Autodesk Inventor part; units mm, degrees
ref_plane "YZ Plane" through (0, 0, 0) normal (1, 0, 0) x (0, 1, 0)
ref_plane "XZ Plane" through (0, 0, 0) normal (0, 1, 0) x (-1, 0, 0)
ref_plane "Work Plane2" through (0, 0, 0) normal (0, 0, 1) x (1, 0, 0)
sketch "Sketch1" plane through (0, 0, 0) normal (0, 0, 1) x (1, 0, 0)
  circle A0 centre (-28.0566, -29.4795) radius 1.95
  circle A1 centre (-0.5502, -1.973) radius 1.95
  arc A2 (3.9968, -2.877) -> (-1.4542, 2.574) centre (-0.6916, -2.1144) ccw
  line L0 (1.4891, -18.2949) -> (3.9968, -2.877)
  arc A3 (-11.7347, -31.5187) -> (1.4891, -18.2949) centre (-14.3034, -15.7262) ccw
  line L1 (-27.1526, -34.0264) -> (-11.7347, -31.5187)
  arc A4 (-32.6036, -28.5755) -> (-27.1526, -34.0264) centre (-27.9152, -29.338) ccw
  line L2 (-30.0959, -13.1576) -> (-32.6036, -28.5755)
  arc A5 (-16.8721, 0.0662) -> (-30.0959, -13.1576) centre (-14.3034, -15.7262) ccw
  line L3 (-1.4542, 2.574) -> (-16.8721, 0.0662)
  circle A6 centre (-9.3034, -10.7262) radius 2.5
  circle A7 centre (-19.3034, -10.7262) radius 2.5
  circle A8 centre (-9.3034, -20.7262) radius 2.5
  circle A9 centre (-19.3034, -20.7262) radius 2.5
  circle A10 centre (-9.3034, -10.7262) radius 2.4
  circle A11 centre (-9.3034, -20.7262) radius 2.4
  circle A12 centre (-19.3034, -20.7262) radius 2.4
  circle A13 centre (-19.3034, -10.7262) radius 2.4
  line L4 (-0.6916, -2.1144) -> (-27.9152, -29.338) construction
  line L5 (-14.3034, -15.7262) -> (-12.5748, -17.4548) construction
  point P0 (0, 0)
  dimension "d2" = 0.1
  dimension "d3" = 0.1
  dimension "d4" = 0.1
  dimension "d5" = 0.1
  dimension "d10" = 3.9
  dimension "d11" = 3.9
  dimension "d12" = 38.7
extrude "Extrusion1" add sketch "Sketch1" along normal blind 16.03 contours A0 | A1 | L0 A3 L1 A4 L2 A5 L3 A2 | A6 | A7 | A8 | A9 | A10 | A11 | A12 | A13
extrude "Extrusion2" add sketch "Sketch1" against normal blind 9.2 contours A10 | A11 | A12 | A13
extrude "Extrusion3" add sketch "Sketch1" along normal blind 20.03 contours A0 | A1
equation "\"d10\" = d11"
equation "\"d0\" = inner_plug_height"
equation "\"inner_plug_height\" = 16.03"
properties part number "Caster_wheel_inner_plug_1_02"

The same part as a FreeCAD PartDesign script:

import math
import FreeCAD as App
import Part
import Sketcher

V = App.Vector

doc = App.newDocument("Part")
params = doc.addObject("Spreadsheet::Sheet", "Params")
for row, (alias, value) in enumerate([
    ("sketch1_radius", "16 mm"),
    ("sketch1_radius2", "4.75 mm"),
    ("pad1_length", "16.03 mm"),
    ("sketch2_diameter", "4.8 mm"),
    ("pad2_length", "9.2 mm"),
    ("sketch3_diameter", "3.9 mm"),
    ("pad3_length", "20.03 mm"),
], start=1):
    params.set(f"A{row}", alias)
    params.set(f"B{row}", "=" + value)
    params.setAlias(f"B{row}", alias)

body = doc.addObject("PartDesign::Body", "Body")

# Sketch on XY plane
sketch1 = body.newObject("Sketcher::SketchObject", "Sketch")
sketch1.AttachmentSupport = (doc.getObject("XY_Plane"), [""])
sketch1.MapMode = "FlatFace"
sketch1.addGeometry([
    Part.LineSegment(V(1.5, -18.3, 0), V(4, -2.9, 0)),  # 0
    Part.ArcOfCircle(Part.Circle(V(-0.7, -2.1, 0), V(0, 0, 1), 4.8), math.radians(-9), math.radians(99)),  # 1
    Part.LineSegment(V(-1.5, 2.6, 0), V(-16.9, 0.1, 0)),  # 2
    Part.ArcOfCircle(Part.Circle(V(-14.3, -15.7, 0), V(0, 0, 1), 16), math.radians(99), math.radians(171)),  # 3
    Part.LineSegment(V(-30.1, -13.2, 0), V(-32.6, -28.6, 0)),  # 4
    Part.ArcOfCircle(Part.Circle(V(-27.9, -29.3, 0), V(0, 0, 1), 4.8), math.radians(171), math.radians(279)),  # 5
    Part.LineSegment(V(-27.2, -34, 0), V(-11.7, -31.5, 0)),  # 6
    Part.ArcOfCircle(Part.Circle(V(-14.3, -15.7, 0), V(0, 0, 1), 16), math.radians(-81), math.radians(-9)),  # 7
], False)
sketch1.addConstraint([
    Sketcher.Constraint("Tangent", 0, 2, 1, 1),
    Sketcher.Constraint("Tangent", 1, 2, 2, 1),
    Sketcher.Constraint("Tangent", 2, 2, 3, 1),
    Sketcher.Constraint("Tangent", 3, 2, 4, 1),
    Sketcher.Constraint("Tangent", 4, 2, 5, 1),
    Sketcher.Constraint("Tangent", 5, 2, 6, 1),
    Sketcher.Constraint("Tangent", 6, 2, 7, 1),
    Sketcher.Constraint("Tangent", 7, 2, 0, 1),
    Sketcher.Constraint("Coincident", 7, 3, 3, 3),
    Sketcher.Constraint("Equal", 1, 5),
    Sketcher.Constraint("Equal", 3, 7),
    Sketcher.Constraint("Parallel", 0, 4),
    Sketcher.Constraint("Parallel", 2, 6),
    Sketcher.Constraint("Radius", 3, 16.0),
    Sketcher.Constraint("Radius", 1, 4.75),
    Sketcher.Constraint("DistanceY", 5, 3, -1, 1, 29.338),
    Sketcher.Constraint("DistanceY", 0, 2, -1, 1, 2.877),
    Sketcher.Constraint("DistanceY", -1, 1, 1, 2, 2.574),
    Sketcher.Constraint("DistanceX", 2, 2, -1, 1, 16.872),
])
sketch1.setExpression("Constraints[13]", "Params.sketch1_radius")
sketch1.setExpression("Constraints[14]", "Params.sketch1_radius2")
pad1 = body.newObject("PartDesign::Pad", "Pad")
pad1.Profile = sketch1
pad1.setExpression("Length", "Params.pad1_length")

# Sketch on XY plane
sketch2 = body.newObject("Sketcher::SketchObject", "Sketch001")
sketch2.AttachmentSupport = (doc.getObject("XY_Plane"), [""])
sketch2.MapMode = "FlatFace"
sketch2.addGeometry([
    Part.Circle(V(-9.3, -10.7, 0), V(0, 0, 1), 2.4),
    Part.Circle(V(-9.3, -20.7, 0), V(0, 0, 1), 2.4),
    Part.Circle(V(-19.3, -20.7, 0), V(0, 0, 1), 2.4),
    Part.Circle(V(-19.3, -10.7, 0), V(0, 0, 1), 2.4),
], False)
sketch2.addConstraint([
    Sketcher.Constraint("Equal", 0, 1),
    Sketcher.Constraint("Equal", 1, 2),
    Sketcher.Constraint("Equal", 2, 3),
    Sketcher.Constraint("Horizontal", 1, 3, 2, 3),
    Sketcher.Constraint("Horizontal", 0, 3, 3, 3),
    Sketcher.Constraint("Vertical", 0, 3, 1, 3),
    Sketcher.Constraint("Vertical", 2, 3, 3, 3),
    Sketcher.Constraint("Diameter", 0, 4.8),
    Sketcher.Constraint("DistanceY", 1, 3, 0, 3, 10.0),
    Sketcher.Constraint("DistanceX", 2, 3, 1, 3, 10.0),
    Sketcher.Constraint("DistanceX", 0, 3, -1, 1, 9.3034),
    Sketcher.Constraint("DistanceY", 0, 3, -1, 1, 10.7262),
])
sketch2.setExpression("Constraints[7]", "Params.sketch2_diameter")
pad2 = body.newObject("PartDesign::Pad", "Pad001")
pad2.Profile = sketch2
pad2.setExpression("Length", "Params.pad2_length")
pad2.Reversed = True

# Sketch on XY plane
sketch3 = body.newObject("Sketcher::SketchObject", "Sketch002")
sketch3.AttachmentSupport = (doc.getObject("XY_Plane"), [""])
sketch3.MapMode = "FlatFace"
sketch3.addGeometry([
    Part.Circle(V(-28.1, -29.5, 0), V(0, 0, 1), 1.9),
    Part.Circle(V(-0.6, -2, 0), V(0, 0, 1), 1.9),
], False)
sketch3.addConstraint([
    Sketcher.Constraint("Equal", 0, 1),
    Sketcher.Constraint("Diameter", 0, 3.9),
    Sketcher.Constraint("DistanceY", 1, 3, -1, 1, 1.973),
    Sketcher.Constraint("DistanceX", 0, 3, -1, 1, 28.0566),
    Sketcher.Constraint("DistanceY", 0, 3, -1, 1, 29.4795),
    Sketcher.Constraint("DistanceX", 1, 3, -1, 1, 0.5502),
])
sketch3.setExpression("Constraints[1]", "Params.sketch3_diameter")
pad3 = body.newObject("PartDesign::Pad", "Pad002")
pad3.Profile = sketch3
pad3.setExpression("Length", "Params.pad3_length")

doc.recompute()
